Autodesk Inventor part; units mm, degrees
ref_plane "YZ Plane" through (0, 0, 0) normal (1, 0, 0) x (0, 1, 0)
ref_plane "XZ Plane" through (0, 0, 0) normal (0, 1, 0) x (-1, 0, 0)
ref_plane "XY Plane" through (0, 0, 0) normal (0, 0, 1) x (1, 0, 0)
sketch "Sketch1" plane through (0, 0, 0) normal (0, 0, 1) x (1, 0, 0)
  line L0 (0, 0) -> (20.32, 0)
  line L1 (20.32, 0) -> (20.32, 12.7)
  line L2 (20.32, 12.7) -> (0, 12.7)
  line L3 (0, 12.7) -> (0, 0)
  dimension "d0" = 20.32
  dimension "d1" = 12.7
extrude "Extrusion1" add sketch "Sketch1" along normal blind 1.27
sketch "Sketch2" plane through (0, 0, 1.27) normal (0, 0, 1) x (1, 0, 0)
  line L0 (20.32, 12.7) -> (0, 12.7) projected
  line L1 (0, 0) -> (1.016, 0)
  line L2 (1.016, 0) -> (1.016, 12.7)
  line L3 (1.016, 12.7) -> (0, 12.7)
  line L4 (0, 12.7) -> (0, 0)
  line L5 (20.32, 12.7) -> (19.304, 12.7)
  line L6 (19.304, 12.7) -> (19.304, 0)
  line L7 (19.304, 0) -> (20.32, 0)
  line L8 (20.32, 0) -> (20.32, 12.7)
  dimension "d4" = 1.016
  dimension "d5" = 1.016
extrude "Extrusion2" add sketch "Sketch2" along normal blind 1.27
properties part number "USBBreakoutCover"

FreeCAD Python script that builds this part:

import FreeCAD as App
import Part
import Sketcher

V = App.Vector
Q = App.Units.Quantity

doc = App.newDocument("Part")
params = doc.addObject("Spreadsheet::Sheet", "Params")
for row, (alias, value) in enumerate([
    ("sketch1_width", "0.8 in"),
    ("sketch1_height", "0.5 in"),
    ("pad1_length", "0.05 in"),
    ("sketch2_width", "0.04 in"),
    ("sketch2_height", "0.5 in"),
    ("pad2_length", "0.05 in"),
], start=1):
    params.set(f"A{row}", alias)
    params.set(f"B{row}", "=" + value)
    params.setAlias(f"B{row}", alias)

body = doc.addObject("PartDesign::Body", "Body")

# Sketch on XY plane
sketch1 = body.newObject("Sketcher::SketchObject", "Sketch")
sketch1.AttachmentSupport = (doc.getObject("XY_Plane"), [""])
sketch1.MapMode = "FlatFace"
sketch1.addGeometry([
    Part.LineSegment(V(0, 13, 0), V(0, 0, 0)),
    Part.LineSegment(V(0, 0, 0), V(20, 0, 0)),
    Part.LineSegment(V(20, 0, 0), V(20, 13, 0)),
    Part.LineSegment(V(20, 13, 0), V(0, 13, 0)),
], False)
sketch1.addConstraint([
    Sketcher.Constraint("Coincident", 0, 2, 1, 1),
    Sketcher.Constraint("Coincident", 1, 2, 2, 1),
    Sketcher.Constraint("Coincident", 2, 2, 3, 1),
    Sketcher.Constraint("Coincident", 3, 2, 0, 1),
    Sketcher.Constraint("Vertical", 0),
    Sketcher.Constraint("Horizontal", 1),
    Sketcher.Constraint("Vertical", 2),
    Sketcher.Constraint("Horizontal", 3),
    Sketcher.Constraint("Coincident", 0, 2, -1, 1),
    Sketcher.Constraint("DistanceX", 1, 1, 1, 2, Q("0.8 in")),
    Sketcher.Constraint("DistanceY", 0, 2, 0, 1, Q("0.5 in")),
])
sketch1.setExpression("Constraints[9]", "Params.sketch1_width")
sketch1.setExpression("Constraints[10]", "Params.sketch1_height")
pad1 = body.newObject("PartDesign::Pad", "Pad")
pad1.Profile = sketch1
pad1.setExpression("Length", "Params.pad1_length")

# Sketch on XY plane
sketch2 = body.newObject("Sketcher::SketchObject", "Sketch001")
sketch2.AttachmentSupport = (doc.getObject("XY_Plane"), [""])
sketch2.MapMode = "FlatFace"
sketch2.AttachmentOffset = App.Placement(V(0, 0, 0.05 * 25.4), App.Rotation())
sketch2.addGeometry([
    Part.LineSegment(V(20.3, 0, 0), V(20.3, 12.7, 0)),  # 0
    Part.LineSegment(V(20.3, 12.7, 0), V(19.3, 12.7, 0)),  # 1
    Part.LineSegment(V(19.3, 12.7, 0), V(19.3, 0, 0)),  # 2
    Part.LineSegment(V(19.3, 0, 0), V(20.3, 0, 0)),  # 3
    Part.LineSegment(V(1, 0, 0), V(1, 12.7, 0)),  # 4
    Part.LineSegment(V(1, 12.7, 0), V(0, 12.7, 0)),  # 5
    Part.LineSegment(V(0, 12.7, 0), V(0, 0, 0)),  # 6
    Part.LineSegment(V(0, 0, 0), V(1, 0, 0)),  # 7
], False)
sketch2.addConstraint([
    Sketcher.Constraint("Coincident", 0, 2, 1, 1),
    Sketcher.Constraint("Coincident", 1, 2, 2, 1),
    Sketcher.Constraint("Coincident", 2, 2, 3, 1),
    Sketcher.Constraint("Coincident", 3, 2, 0, 1),
    Sketcher.Constraint("Coincident", 4, 2, 5, 1),
    Sketcher.Constraint("Coincident", 5, 2, 6, 1),
    Sketcher.Constraint("Coincident", 6, 2, 7, 1),
    Sketcher.Constraint("Coincident", 7, 2, 4, 1),
    Sketcher.Constraint("Vertical", 0),
    Sketcher.Constraint("Horizontal", 1),
    Sketcher.Constraint("Vertical", 2),
    Sketcher.Constraint("Horizontal", 3),
    Sketcher.Constraint("Vertical", 4),
    Sketcher.Constraint("Horizontal", 5),
    Sketcher.Constraint("Vertical", 6),
    Sketcher.Constraint("Horizontal", 7),
    Sketcher.Constraint("Coincident", 6, 2, -1, 1),
    Sketcher.Constraint("PointOnObject", 2, 2, -1),
    Sketcher.Constraint("Horizontal", 1, 2, 4, 2),
    Sketcher.Constraint("Equal", 3, 5),
    Sketcher.Constraint("DistanceX", 1, 2, 1, 1, Q("0.04 in")),
    Sketcher.Constraint("DistanceY", 0, 1, 0, 2, Q("0.5 in")),
    Sketcher.Constraint("DistanceX", -1, 1, 0, 2, Q("0.8 in")),
])
sketch2.setExpression("Constraints[20]", "Params.sketch2_width")
sketch2.setExpression("Constraints[21]", "Params.sketch2_height")
pad2 = body.newObject("PartDesign::Pad", "Pad001")
pad2.Profile = sketch2
pad2.setExpression("Length", "Params.pad2_length")

doc.recompute()
